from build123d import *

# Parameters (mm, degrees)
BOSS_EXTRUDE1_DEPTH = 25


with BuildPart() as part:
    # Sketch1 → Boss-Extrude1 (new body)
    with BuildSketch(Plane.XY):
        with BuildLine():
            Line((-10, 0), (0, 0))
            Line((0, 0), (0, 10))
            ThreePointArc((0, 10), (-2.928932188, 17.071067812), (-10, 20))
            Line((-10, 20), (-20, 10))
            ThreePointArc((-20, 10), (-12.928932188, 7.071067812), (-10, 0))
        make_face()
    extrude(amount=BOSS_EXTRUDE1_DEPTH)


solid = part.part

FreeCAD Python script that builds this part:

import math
import FreeCAD as App
import Part
import Sketcher
from FreeCAD import Vector
Q = App.Units.Quantity

doc = App.newDocument("Part")
params = doc.addObject("Spreadsheet::Sheet", "Params")
for row, (alias, value) in enumerate([
    ("sketch1_radius", "10 mm"),
    ("pad1_length", "25 mm"),
], start=1):
    params.set(f"A{row}", alias)
    params.set(f"B{row}", "=" + value)
    params.setAlias(f"B{row}", alias)

body = doc.addObject("PartDesign::Body", "Body")

sketch1 = body.newObject("Sketcher::SketchObject", "Sketch")
sketch1.AttachmentSupport = (doc.getObject("XY_Plane"), [""])
sketch1.MapMode = "FlatFace"
sketch1.addGeometry([
    Part.LineSegment(Vector(-10, 0, 0), Vector(0, 0, 0)),
    Part.LineSegment(Vector(0, 0, 0), Vector(0, 10, 0)),
    Part.ArcOfCircle(Part.Circle(Vector(-10, 10, 0), Vector(0, 0, 1), 10), math.radians(0), math.radians(90)),
    Part.LineSegment(Vector(-10, 20, 0), Vector(-20, 10, 0)),
    Part.ArcOfCircle(Part.Circle(Vector(-20, 0, 0), Vector(0, 0, 1), 10), math.radians(0), math.radians(90)),
], False)
sketch1.addConstraint([
    Sketcher.Constraint("Coincident", 0, 2, 1, 1),
    Sketcher.Constraint("Tangent", 1, 2, 2, 1),
    Sketcher.Constraint("Coincident", 2, 2, 3, 1),
    Sketcher.Constraint("Coincident", 3, 2, 4, 2),
    Sketcher.Constraint("Coincident", 4, 1, 0, 1),
    Sketcher.Constraint("Horizontal", 0),
    Sketcher.Constraint("Vertical", 1),
    Sketcher.Constraint("Coincident", 0, 2, -1, 1),
    Sketcher.Constraint("Equal", 2, 4),
    Sketcher.Constraint("PointOnObject", 4, 3, -1),
    Sketcher.Constraint("Horizontal", 1, 2, 3, 2),
    Sketcher.Constraint("Vertical", 4, 3, 3, 2),
    Sketcher.Constraint("Vertical", 2, 2, 4, 1),
    Sketcher.Constraint("Equal", 0, 1),
    Sketcher.Constraint("Radius", 2, Q("10 mm")),
])
sketch1.setExpression("Constraints[14]", "Params.sketch1_radius")
pad1 = body.newObject("PartDesign::Pad", "Pad")
pad1.Profile = sketch1
pad1.setExpression("Length", "Params.pad1_length")

doc.recompute()
